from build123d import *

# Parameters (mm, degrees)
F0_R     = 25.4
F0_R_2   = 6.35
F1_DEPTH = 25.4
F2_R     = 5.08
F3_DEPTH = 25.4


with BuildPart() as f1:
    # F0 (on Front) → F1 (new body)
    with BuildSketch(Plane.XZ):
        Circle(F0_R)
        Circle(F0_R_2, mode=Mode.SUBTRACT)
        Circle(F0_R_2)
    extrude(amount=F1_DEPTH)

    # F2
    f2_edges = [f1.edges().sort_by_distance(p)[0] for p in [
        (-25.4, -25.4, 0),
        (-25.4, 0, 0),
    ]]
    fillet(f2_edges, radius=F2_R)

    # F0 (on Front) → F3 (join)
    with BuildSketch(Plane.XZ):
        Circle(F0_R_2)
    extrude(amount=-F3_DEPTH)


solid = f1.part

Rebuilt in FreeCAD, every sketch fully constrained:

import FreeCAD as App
import Part
import Sketcher
from FreeCAD import Vector
Q = App.Units.Quantity


def edges_at(feature, points):
    """Names of the edges that pass closest to the given points."""
    edges = feature.Shape.Edges
    near = lambda p: min(range(len(edges)), key=lambda i: edges[i].distToShape(Part.Vertex(*p))[0])
    return sorted({f"Edge{near(p) + 1}" for p in points})

doc = App.newDocument("Part")
body = doc.addObject("PartDesign::Body", "Body")

# Sketch on XZ plane
sketch1 = body.newObject("Sketcher::SketchObject", "Sketch")
sketch1.AttachmentSupport = (doc.getObject("XZ_Plane"), [""])
sketch1.MapMode = "FlatFace"
sketch1.addGeometry(Part.Circle(Vector(0, 0, 0), Vector(0, 0, 1), 25.4), False)
sketch1.addConstraint([
    Sketcher.Constraint("Coincident", 0, 3, -1, 1),
    Sketcher.Constraint("Diameter", 0, Q("2 in")),
])
pad1 = body.newObject("PartDesign::Pad", "Pad")
pad1.Profile = sketch1
pad1.Length = Q("1 in")
doc.recompute()

fillet = body.newObject("PartDesign::Fillet", "Fillet")
fillet.Base = (pad1, edges_at(pad1, [(-25.4, -25.4, 0), (-25.4, 0, 0)]))
fillet.Radius = Q("0.2 in")

# Sketch on XZ plane
sketch2 = body.newObject("Sketcher::SketchObject", "Sketch001")
sketch2.AttachmentSupport = (doc.getObject("XZ_Plane"), [""])
sketch2.MapMode = "FlatFace"
sketch2.addGeometry(Part.Circle(Vector(0, 0, 0), Vector(0, 0, 1), 6.35), False)
sketch2.addConstraint([
    Sketcher.Constraint("Coincident", 0, 3, -1, 1),
    Sketcher.Constraint("Diameter", 0, Q("0.5 in")),
])
pad2 = body.newObject("PartDesign::Pad", "Pad001")
pad2.Profile = sketch2
pad2.Length = Q("1 in")
pad2.Reversed = True

doc.recompute()
